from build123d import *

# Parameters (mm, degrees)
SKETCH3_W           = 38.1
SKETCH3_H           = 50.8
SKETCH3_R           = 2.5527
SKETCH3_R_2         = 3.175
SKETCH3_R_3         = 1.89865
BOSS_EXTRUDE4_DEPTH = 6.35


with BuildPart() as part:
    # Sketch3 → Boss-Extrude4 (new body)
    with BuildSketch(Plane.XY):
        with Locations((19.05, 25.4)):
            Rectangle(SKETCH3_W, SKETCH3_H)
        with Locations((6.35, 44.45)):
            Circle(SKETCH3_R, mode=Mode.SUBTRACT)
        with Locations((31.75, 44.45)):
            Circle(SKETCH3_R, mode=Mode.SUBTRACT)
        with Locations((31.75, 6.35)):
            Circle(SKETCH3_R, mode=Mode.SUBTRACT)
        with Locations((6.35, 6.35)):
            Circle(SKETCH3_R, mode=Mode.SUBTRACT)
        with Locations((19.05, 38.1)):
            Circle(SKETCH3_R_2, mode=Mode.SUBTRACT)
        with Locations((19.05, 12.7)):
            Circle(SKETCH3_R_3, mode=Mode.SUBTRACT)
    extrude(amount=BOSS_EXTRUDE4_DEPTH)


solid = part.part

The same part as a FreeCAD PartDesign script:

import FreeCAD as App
import Part
import Sketcher

V = App.Vector
Q = App.Units.Quantity


def add_polygon(sketch, points):
    """Adds a closed chain of lines whose ends are joined by coincident constraints."""
    first, n = sketch.GeometryCount, len(points)
    for a, b in zip(points, points[1:] + points[:1]):
        sketch.addGeometry(Part.LineSegment(App.Vector(*a, 0), App.Vector(*b, 0)), False)
    for i in range(n):
        sketch.addConstraint(Sketcher.Constraint("Coincident", first + i, 2, first + (i + 1) % n, 1))

doc = App.newDocument("Part")
body = doc.addObject("PartDesign::Body", "Body")

# Sketch on XY plane
sketch1 = body.newObject("Sketcher::SketchObject", "Sketch")
sketch1.AttachmentSupport = (doc.getObject("XY_Plane"), [""])
sketch1.MapMode = "FlatFace"
add_polygon(sketch1, [(0, 50.8), (0, 0), (38.1, 0), (38.1, 50.8)])  # lines 0-3
sketch1.addGeometry(Part.Circle(V(6.3, 6.3, 0), V(0, 0, 1), 2.6), False)  # 4
sketch1.addGeometry(Part.Circle(V(19.1, 12.7, 0), V(0, 0, 1), 1.9), False)  # 5
sketch1.addGeometry(Part.Circle(V(31.8, 6.3, 0), V(0, 0, 1), 2.6), False)  # 6
sketch1.addGeometry(Part.Circle(V(6.3, 44.5, 0), V(0, 0, 1), 2.6), False)  # 7
sketch1.addGeometry(Part.Circle(V(19.1, 38.1, 0), V(0, 0, 1), 3.2), False)  # 8
sketch1.addGeometry(Part.Circle(V(31.8, 44.5, 0), V(0, 0, 1), 2.6), False)  # 9
sketch1.addConstraint([
    Sketcher.Constraint("Vertical", 0),
    Sketcher.Constraint("Horizontal", 1),
    Sketcher.Constraint("Vertical", 2),
    Sketcher.Constraint("Horizontal", 3),
    Sketcher.Constraint("Coincident", 0, 2, -1, 1),
    Sketcher.Constraint("Equal", 4, 6),
    Sketcher.Constraint("Equal", 6, 7),
    Sketcher.Constraint("Equal", 7, 9),
    Sketcher.Constraint("Horizontal", 4, 3, 6, 3),
    Sketcher.Constraint("Horizontal", 7, 3, 9, 3),
    Sketcher.Constraint("Vertical", 4, 3, 7, 3),
    Sketcher.Constraint("Vertical", 5, 3, 8, 3),
    Sketcher.Constraint("Vertical", 6, 3, 9, 3),
    Sketcher.Constraint("Diameter", 8, Q("0.25 in")),
    Sketcher.Constraint("DistanceY", 0, 2, 0, 1, Q("2 in")),
    Sketcher.Constraint("Diameter", 4, Q("0.201 in")),
    Sketcher.Constraint("DistanceX", 1, 1, 1, 2, Q("1.5 in")),
    Sketcher.Constraint("DistanceX", 4, 3, 6, 3, Q("1 in")),
    Sketcher.Constraint("DistanceY", 5, 3, 8, 3, Q("1 in")),
    Sketcher.Constraint("Diameter", 5, Q("0.1495 in")),
    Sketcher.Constraint("DistanceY", -1, 1, 5, 3, Q("0.5 in")),
    Sketcher.Constraint("DistanceX", 4, 3, 5, 3, Q("0.5 in")),
    Sketcher.Constraint("DistanceY", 4, 3, 7, 3, Q("1.5 in")),
    Sketcher.Constraint("DistanceX", -1, 1, 4, 3, Q("0.25 in")),
    Sketcher.Constraint("DistanceY", -1, 1, 4, 3, Q("0.25 in")),
])
pad1 = body.newObject("PartDesign::Pad", "Pad")
pad1.Profile = sketch1
pad1.Length = Q("0.25 in")

doc.recompute()
